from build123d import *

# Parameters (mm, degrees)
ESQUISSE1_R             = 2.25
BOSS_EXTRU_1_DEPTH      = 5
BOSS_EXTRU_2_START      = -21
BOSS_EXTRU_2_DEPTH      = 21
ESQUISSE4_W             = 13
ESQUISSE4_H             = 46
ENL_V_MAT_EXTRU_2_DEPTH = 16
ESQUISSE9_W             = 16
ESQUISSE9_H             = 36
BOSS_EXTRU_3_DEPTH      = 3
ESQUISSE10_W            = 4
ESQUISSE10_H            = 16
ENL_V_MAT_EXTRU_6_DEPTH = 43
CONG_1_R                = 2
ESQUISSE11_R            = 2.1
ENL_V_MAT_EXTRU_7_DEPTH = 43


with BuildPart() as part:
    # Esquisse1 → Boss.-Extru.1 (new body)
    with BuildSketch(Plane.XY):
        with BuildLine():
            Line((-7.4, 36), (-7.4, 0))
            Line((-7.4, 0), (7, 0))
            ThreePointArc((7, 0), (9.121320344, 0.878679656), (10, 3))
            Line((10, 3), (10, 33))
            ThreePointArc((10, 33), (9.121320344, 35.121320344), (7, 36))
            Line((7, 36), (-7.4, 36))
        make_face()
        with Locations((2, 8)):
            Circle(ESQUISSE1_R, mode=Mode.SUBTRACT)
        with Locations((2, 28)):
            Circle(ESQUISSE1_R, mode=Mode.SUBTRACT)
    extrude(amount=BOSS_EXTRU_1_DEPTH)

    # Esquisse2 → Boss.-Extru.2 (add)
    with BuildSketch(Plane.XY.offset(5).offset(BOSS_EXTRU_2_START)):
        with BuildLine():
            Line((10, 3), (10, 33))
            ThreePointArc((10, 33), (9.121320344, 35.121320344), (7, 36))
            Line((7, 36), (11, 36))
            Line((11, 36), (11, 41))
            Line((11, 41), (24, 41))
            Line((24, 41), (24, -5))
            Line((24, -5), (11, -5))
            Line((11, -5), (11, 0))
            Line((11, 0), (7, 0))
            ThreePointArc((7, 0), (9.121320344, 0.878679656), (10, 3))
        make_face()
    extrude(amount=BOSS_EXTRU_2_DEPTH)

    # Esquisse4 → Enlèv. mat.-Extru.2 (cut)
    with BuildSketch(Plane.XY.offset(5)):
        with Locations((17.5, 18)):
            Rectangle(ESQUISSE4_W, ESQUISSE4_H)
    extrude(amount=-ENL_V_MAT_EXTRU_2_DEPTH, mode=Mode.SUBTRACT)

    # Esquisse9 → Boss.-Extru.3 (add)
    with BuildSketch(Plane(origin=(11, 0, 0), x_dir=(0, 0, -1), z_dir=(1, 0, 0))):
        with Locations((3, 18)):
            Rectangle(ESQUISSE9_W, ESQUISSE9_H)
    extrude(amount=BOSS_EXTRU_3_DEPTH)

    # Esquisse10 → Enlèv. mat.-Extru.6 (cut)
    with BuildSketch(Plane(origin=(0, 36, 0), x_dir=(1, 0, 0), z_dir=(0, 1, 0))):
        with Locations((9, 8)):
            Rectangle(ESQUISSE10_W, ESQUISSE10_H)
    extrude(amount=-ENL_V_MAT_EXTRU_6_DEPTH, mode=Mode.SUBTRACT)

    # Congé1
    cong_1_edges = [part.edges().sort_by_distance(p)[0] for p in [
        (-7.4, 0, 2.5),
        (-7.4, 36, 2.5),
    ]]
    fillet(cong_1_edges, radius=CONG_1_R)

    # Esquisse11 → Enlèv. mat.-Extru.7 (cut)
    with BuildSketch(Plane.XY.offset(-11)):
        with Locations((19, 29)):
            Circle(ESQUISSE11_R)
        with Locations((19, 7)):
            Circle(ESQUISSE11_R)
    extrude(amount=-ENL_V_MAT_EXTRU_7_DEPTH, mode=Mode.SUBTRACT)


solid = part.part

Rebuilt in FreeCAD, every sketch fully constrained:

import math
import FreeCAD as App
import Part
import Sketcher


def edges_at(feature, points):
    """Names of the edges that pass closest to the given points."""
    edges = feature.Shape.Edges
    near = lambda p: min(range(len(edges)), key=lambda i: edges[i].distToShape(Part.Vertex(*p))[0])
    return sorted({f"Edge{near(p) + 1}" for p in points})


def add_polygon(sketch, points):
    """Adds a closed chain of lines whose ends are joined by coincident constraints."""
    first, n = sketch.GeometryCount, len(points)
    for a, b in zip(points, points[1:] + points[:1]):
        sketch.addGeometry(Part.LineSegment(App.Vector(*a, 0), App.Vector(*b, 0)), False)
    for i in range(n):
        sketch.addConstraint(Sketcher.Constraint("Coincident", first + i, 2, first + (i + 1) % n, 1))

doc = App.newDocument("Part")
body = doc.addObject("PartDesign::Body", "Body")

sketch1 = body.newObject("Sketcher::SketchObject", "Sketch")
sketch1.AttachmentSupport = (doc.getObject("XY_Plane"), [""])
sketch1.MapMode = "FlatFace"
sketch1.addGeometry([
    Part.LineSegment(App.Vector(-7.4, 36, 0), App.Vector(-7.4, 0, 0)),
    Part.LineSegment(App.Vector(-7.4, 0, 0), App.Vector(7, 0, 0)),
    Part.ArcOfCircle(Part.Circle(App.Vector(7, 3, 0), App.Vector(0, 0, 1), 3), math.radians(-90), math.radians(0)),
    Part.LineSegment(App.Vector(10, 3, 0), App.Vector(10, 33, 0)),
    Part.ArcOfCircle(Part.Circle(App.Vector(7, 33, 0), App.Vector(0, 0, 1), 3), math.radians(0), math.radians(90)),
    Part.LineSegment(App.Vector(7, 36, 0), App.Vector(-7.4, 36, 0)),
    Part.Circle(App.Vector(2, 8, 0), App.Vector(0, 0, 1), 2.2),
    Part.Circle(App.Vector(2, 28, 0), App.Vector(0, 0, 1), 2.2),
], False)
sketch1.addConstraint([
    Sketcher.Constraint("Coincident", 0, 2, 1, 1),
    Sketcher.Constraint("Tangent", 1, 2, 2, 1),
    Sketcher.Constraint("Tangent", 2, 2, 3, 1),
    Sketcher.Constraint("Tangent", 3, 2, 4, 1),
    Sketcher.Constraint("Tangent", 4, 2, 5, 1),
    Sketcher.Constraint("Coincident", 5, 2, 0, 1),
    Sketcher.Constraint("Vertical", 0),
    Sketcher.Constraint("Horizontal", 1),
    Sketcher.Constraint("Vertical", 3),
    Sketcher.Constraint("Horizontal", 5),
    Sketcher.Constraint("Equal", 2, 4),
    Sketcher.Constraint("Equal", 6, 7),
    Sketcher.Constraint("PointOnObject", 0, 2, -1),
    Sketcher.Constraint("Vertical", 6, 3, 7, 3),
    Sketcher.Constraint("Radius", 2, 3.0),
    Sketcher.Constraint("Diameter", 6, 4.5),
    Sketcher.Constraint("DistanceY", 0, 2, 0, 1, 36.0),
    Sketcher.Constraint("DistanceX", 1, 1, 1, 2, 14.4),
    Sketcher.Constraint("DistanceX", -1, 1, 2, 3, 7.0),
    Sketcher.Constraint("DistanceX", -1, 1, 6, 3, 2.0),
    Sketcher.Constraint("DistanceY", -1, 1, 6, 3, 8.0),
    Sketcher.Constraint("DistanceY", -1, 1, 7, 3, 28.0),
])
pad1 = body.newObject("PartDesign::Pad", "Pad")
pad1.Profile = sketch1
pad1.Length = 5

sketch2 = body.newObject("Sketcher::SketchObject", "Sketch001")
sketch2.AttachmentSupport = (doc.getObject("XY_Plane"), [""])
sketch2.MapMode = "FlatFace"
sketch2.AttachmentOffset = App.Placement(App.Vector(0, 0, -16), App.Rotation())
sketch2.addGeometry([
    Part.LineSegment(App.Vector(10, 33, 0), App.Vector(10, 3, 0)),
    Part.ArcOfCircle(Part.Circle(App.Vector(7, 3, 0), App.Vector(0, 0, 1), 3), math.radians(-90), math.radians(0)),
    Part.LineSegment(App.Vector(7, 0, 0), App.Vector(11, 0, 0)),
    Part.LineSegment(App.Vector(11, 0, 0), App.Vector(11, -5, 0)),
    Part.LineSegment(App.Vector(11, -5, 0), App.Vector(24, -5, 0)),
    Part.LineSegment(App.Vector(24, -5, 0), App.Vector(24, 41, 0)),
    Part.LineSegment(App.Vector(24, 41, 0), App.Vector(11, 41, 0)),
    Part.LineSegment(App.Vector(11, 41, 0), App.Vector(11, 36, 0)),
    Part.LineSegment(App.Vector(11, 36, 0), App.Vector(7, 36, 0)),
    Part.ArcOfCircle(Part.Circle(App.Vector(7, 33, 0), App.Vector(0, 0, 1), 3), math.radians(0), math.radians(90)),
], False)
sketch2.addConstraint([
    Sketcher.Constraint("Tangent", 0, 2, 1, 2),
    Sketcher.Constraint("Tangent", 1, 1, 2, 1),
    Sketcher.Constraint("Coincident", 2, 2, 3, 1),
    Sketcher.Constraint("Coincident", 3, 2, 4, 1),
    Sketcher.Constraint("Coincident", 4, 2, 5, 1),
    Sketcher.Constraint("Coincident", 5, 2, 6, 1),
    Sketcher.Constraint("Coincident", 6, 2, 7, 1),
    Sketcher.Constraint("Coincident", 7, 2, 8, 1),
    Sketcher.Constraint("Tangent", 8, 2, 9, 2),
    Sketcher.Constraint("Tangent", 9, 1, 0, 1),
    Sketcher.Constraint("Vertical", 0),
    Sketcher.Constraint("Horizontal", 2),
    Sketcher.Constraint("Vertical", 3),
    Sketcher.Constraint("Horizontal", 4),
    Sketcher.Constraint("Vertical", 5),
    Sketcher.Constraint("Horizontal", 6),
    Sketcher.Constraint("Vertical", 7),
    Sketcher.Constraint("Horizontal", 8),
    Sketcher.Constraint("Equal", 1, 9),
    Sketcher.Constraint("PointOnObject", 1, 1, -1),
    Sketcher.Constraint("Vertical", 3, 2, 6, 2),
    Sketcher.Constraint("Equal", 3, 7),
    Sketcher.Constraint("Radius", 1, 3.0),
    Sketcher.Constraint("DistanceX", 2, 1, 2, 2, 4.0),
    Sketcher.Constraint("DistanceX", 4, 1, 4, 2, 13.0),
    Sketcher.Constraint("DistanceY", 0, 2, 0, 1, 30.0),
    Sketcher.Constraint("DistanceY", 3, 2, 3, 1, 5.0),
    Sketcher.Constraint("DistanceX", -1, 1, 1, 3, 7.0),
])
pad2 = body.newObject("PartDesign::Pad", "Pad001")
pad2.Profile = sketch2
pad2.Length = 21

sketch3 = body.newObject("Sketcher::SketchObject", "Sketch002")
sketch3.AttachmentSupport = (doc.getObject("XY_Plane"), [""])
sketch3.MapMode = "FlatFace"
sketch3.AttachmentOffset = App.Placement(App.Vector(0, 0, 5), App.Rotation())
add_polygon(sketch3, [(11, 41), (11, -5), (24, -5), (24, 41)])
sketch3.addConstraint([
    Sketcher.Constraint("Vertical", 0),
    Sketcher.Constraint("Horizontal", 1),
    Sketcher.Constraint("Vertical", 2),
    Sketcher.Constraint("Horizontal", 3),
    Sketcher.Constraint("DistanceX", 1, 1, 1, 2, 13.0),
    Sketcher.Constraint("DistanceY", 0, 2, 0, 1, 46.0),
    Sketcher.Constraint("DistanceX", -1, 1, 0, 2, 11.0),
    Sketcher.Constraint("DistanceY", 0, 2, -1, 1, 5.0),
])
pocket1 = body.newObject("PartDesign::Pocket", "Pocket")
pocket1.Profile = sketch3
pocket1.Length = 16

sketch4 = body.newObject("Sketcher::SketchObject", "Sketch003")
sketch4.AttachmentSupport = (doc.getObject("YZ_Plane"), [""])
sketch4.MapMode = "FlatFace"
sketch4.AttachmentOffset = App.Placement(App.Vector(0, 0, 11), App.Rotation())
add_polygon(sketch4, [(36, 5), (0, 5), (0, -11), (36, -11)])
sketch4.addConstraint([
    Sketcher.Constraint("Horizontal", 0),
    Sketcher.Constraint("Vertical", 1),
    Sketcher.Constraint("Horizontal", 2),
    Sketcher.Constraint("Vertical", 3),
    Sketcher.Constraint("PointOnObject", 0, 2, -2),
    Sketcher.Constraint("DistanceX", 0, 2, 0, 1, 36.0),
    Sketcher.Constraint("DistanceY", 1, 2, 1, 1, 16.0),
    Sketcher.Constraint("DistanceY", -1, 1, 0, 2, 5.0),
])
pad3 = body.newObject("PartDesign::Pad", "Pad002")
pad3.Profile = sketch4
pad3.Length = 3

sketch5 = body.newObject("Sketcher::SketchObject", "Sketch004")
sketch5.AttachmentSupport = (doc.getObject("XZ_Plane"), [""])
sketch5.MapMode = "FlatFace"
sketch5.AttachmentOffset = App.Placement(App.Vector(0, 0, -36), App.Rotation())
add_polygon(sketch5, [(7, -16), (7, 0), (11, 0), (11, -16)])
sketch5.addConstraint([
    Sketcher.Constraint("Vertical", 0),
    Sketcher.Constraint("Horizontal", 1),
    Sketcher.Constraint("Vertical", 2),
    Sketcher.Constraint("Horizontal", 3),
    Sketcher.Constraint("PointOnObject", 0, 2, -1),
    Sketcher.Constraint("DistanceX", 1, 1, 1, 2, 4.0),
    Sketcher.Constraint("DistanceY", 0, 1, 0, 2, 16.0),
    Sketcher.Constraint("DistanceX", -1, 1, 0, 2, 7.0),
])
pocket2 = body.newObject("PartDesign::Pocket", "Pocket001")
pocket2.Profile = sketch5
pocket2.Length = 43
pocket2.Reversed = True
doc.recompute()

fillet = body.newObject("PartDesign::Fillet", "Fillet")
fillet.Base = (pocket2, edges_at(pocket2, [(-7.4, 0, 2.5), (-7.4, 36, 2.5)]))
fillet.Radius = 2

sketch6 = body.newObject("Sketcher::SketchObject", "Sketch005")
sketch6.AttachmentSupport = (doc.getObject("XY_Plane"), [""])
sketch6.MapMode = "FlatFace"
sketch6.AttachmentOffset = App.Placement(App.Vector(0, 0, -11), App.Rotation())
sketch6.addGeometry([
    Part.Circle(App.Vector(19, 29, 0), App.Vector(0, 0, 1), 2.1),
    Part.Circle(App.Vector(19, 7, 0), App.Vector(0, 0, 1), 2.1),
], False)
sketch6.addConstraint([
    Sketcher.Constraint("Equal", 0, 1),
    Sketcher.Constraint("Vertical", 0, 3, 1, 3),
    Sketcher.Constraint("Diameter", 0, 4.2),
    Sketcher.Constraint("DistanceX", -1, 1, 0, 3, 19.0),
    Sketcher.Constraint("DistanceY", -1, 1, 0, 3, 29.0),
    Sketcher.Constraint("DistanceY", -1, 1, 1, 3, 7.0),
])
pocket3 = body.newObject("PartDesign::Pocket", "Pocket002")
pocket3.Profile = sketch6
pocket3.Length = 43

doc.recompute()
